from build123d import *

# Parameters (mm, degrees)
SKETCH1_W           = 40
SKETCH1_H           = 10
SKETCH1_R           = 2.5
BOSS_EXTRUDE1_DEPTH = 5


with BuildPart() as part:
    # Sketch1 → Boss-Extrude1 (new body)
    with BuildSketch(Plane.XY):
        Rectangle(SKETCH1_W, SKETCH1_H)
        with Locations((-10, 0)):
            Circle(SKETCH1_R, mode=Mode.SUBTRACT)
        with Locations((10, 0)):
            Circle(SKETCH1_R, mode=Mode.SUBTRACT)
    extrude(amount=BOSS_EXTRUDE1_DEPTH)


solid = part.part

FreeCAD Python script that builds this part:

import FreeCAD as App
import Part
import Sketcher
Q = App.Units.Quantity


def add_polygon(sketch, points):
    """Adds a closed chain of lines whose ends are joined by coincident constraints."""
    first, n = sketch.GeometryCount, len(points)
    for a, b in zip(points, points[1:] + points[:1]):
        sketch.addGeometry(Part.LineSegment(App.Vector(*a, 0), App.Vector(*b, 0)), False)
    for i in range(n):
        sketch.addConstraint(Sketcher.Constraint("Coincident", first + i, 2, first + (i + 1) % n, 1))

doc = App.newDocument("Part")
body = doc.addObject("PartDesign::Body", "Body")

# Sketch on XY plane
sketch1 = doc.addObject("Sketcher::SketchObject", "Sketch")
body.addObject(sketch1)
sketch1.AttachmentSupport = (doc.XY_Plane, [""])
sketch1.MapMode = "FlatFace"
add_polygon(sketch1, [(-20, 5), (-20, -5), (20, -5), (20, 5)])  # lines 0-3
sketch1.addGeometry(Part.Circle(App.Vector(-10, 0, 0), App.Vector(0, 0, 1), 2.5), False)  # 4
sketch1.addGeometry(Part.Circle(App.Vector(10, 0, 0), App.Vector(0, 0, 1), 2.5), False)  # 5
sketch1.addConstraint([
    Sketcher.Constraint("Vertical", 0),
    Sketcher.Constraint("Horizontal", 1),
    Sketcher.Constraint("Vertical", 2),
    Sketcher.Constraint("Horizontal", 3),
    Sketcher.Constraint("Equal", 4, 5),
    Sketcher.Constraint("Symmetric", 4, 3, 5, 3, -1, 1),
    Sketcher.Constraint("Symmetric", 0, 2, 2, 2, -1, 1),
    Sketcher.Constraint("PointOnObject", 4, 3, -1),
    Sketcher.Constraint("Diameter", 4, Q("5 mm")),
    Sketcher.Constraint("DistanceX", 1, 1, 1, 2, Q("40 mm")),
    Sketcher.Constraint("DistanceY", 0, 2, 0, 1, Q("10 mm")),
    Sketcher.Constraint("DistanceX", 4, 3, -1, 1, Q("10 mm")),
])
pad1 = doc.addObject("PartDesign::Pad", "Pad")
body.addObject(pad1)
pad1.Profile = sketch1
pad1.Length = 5

doc.recompute()
